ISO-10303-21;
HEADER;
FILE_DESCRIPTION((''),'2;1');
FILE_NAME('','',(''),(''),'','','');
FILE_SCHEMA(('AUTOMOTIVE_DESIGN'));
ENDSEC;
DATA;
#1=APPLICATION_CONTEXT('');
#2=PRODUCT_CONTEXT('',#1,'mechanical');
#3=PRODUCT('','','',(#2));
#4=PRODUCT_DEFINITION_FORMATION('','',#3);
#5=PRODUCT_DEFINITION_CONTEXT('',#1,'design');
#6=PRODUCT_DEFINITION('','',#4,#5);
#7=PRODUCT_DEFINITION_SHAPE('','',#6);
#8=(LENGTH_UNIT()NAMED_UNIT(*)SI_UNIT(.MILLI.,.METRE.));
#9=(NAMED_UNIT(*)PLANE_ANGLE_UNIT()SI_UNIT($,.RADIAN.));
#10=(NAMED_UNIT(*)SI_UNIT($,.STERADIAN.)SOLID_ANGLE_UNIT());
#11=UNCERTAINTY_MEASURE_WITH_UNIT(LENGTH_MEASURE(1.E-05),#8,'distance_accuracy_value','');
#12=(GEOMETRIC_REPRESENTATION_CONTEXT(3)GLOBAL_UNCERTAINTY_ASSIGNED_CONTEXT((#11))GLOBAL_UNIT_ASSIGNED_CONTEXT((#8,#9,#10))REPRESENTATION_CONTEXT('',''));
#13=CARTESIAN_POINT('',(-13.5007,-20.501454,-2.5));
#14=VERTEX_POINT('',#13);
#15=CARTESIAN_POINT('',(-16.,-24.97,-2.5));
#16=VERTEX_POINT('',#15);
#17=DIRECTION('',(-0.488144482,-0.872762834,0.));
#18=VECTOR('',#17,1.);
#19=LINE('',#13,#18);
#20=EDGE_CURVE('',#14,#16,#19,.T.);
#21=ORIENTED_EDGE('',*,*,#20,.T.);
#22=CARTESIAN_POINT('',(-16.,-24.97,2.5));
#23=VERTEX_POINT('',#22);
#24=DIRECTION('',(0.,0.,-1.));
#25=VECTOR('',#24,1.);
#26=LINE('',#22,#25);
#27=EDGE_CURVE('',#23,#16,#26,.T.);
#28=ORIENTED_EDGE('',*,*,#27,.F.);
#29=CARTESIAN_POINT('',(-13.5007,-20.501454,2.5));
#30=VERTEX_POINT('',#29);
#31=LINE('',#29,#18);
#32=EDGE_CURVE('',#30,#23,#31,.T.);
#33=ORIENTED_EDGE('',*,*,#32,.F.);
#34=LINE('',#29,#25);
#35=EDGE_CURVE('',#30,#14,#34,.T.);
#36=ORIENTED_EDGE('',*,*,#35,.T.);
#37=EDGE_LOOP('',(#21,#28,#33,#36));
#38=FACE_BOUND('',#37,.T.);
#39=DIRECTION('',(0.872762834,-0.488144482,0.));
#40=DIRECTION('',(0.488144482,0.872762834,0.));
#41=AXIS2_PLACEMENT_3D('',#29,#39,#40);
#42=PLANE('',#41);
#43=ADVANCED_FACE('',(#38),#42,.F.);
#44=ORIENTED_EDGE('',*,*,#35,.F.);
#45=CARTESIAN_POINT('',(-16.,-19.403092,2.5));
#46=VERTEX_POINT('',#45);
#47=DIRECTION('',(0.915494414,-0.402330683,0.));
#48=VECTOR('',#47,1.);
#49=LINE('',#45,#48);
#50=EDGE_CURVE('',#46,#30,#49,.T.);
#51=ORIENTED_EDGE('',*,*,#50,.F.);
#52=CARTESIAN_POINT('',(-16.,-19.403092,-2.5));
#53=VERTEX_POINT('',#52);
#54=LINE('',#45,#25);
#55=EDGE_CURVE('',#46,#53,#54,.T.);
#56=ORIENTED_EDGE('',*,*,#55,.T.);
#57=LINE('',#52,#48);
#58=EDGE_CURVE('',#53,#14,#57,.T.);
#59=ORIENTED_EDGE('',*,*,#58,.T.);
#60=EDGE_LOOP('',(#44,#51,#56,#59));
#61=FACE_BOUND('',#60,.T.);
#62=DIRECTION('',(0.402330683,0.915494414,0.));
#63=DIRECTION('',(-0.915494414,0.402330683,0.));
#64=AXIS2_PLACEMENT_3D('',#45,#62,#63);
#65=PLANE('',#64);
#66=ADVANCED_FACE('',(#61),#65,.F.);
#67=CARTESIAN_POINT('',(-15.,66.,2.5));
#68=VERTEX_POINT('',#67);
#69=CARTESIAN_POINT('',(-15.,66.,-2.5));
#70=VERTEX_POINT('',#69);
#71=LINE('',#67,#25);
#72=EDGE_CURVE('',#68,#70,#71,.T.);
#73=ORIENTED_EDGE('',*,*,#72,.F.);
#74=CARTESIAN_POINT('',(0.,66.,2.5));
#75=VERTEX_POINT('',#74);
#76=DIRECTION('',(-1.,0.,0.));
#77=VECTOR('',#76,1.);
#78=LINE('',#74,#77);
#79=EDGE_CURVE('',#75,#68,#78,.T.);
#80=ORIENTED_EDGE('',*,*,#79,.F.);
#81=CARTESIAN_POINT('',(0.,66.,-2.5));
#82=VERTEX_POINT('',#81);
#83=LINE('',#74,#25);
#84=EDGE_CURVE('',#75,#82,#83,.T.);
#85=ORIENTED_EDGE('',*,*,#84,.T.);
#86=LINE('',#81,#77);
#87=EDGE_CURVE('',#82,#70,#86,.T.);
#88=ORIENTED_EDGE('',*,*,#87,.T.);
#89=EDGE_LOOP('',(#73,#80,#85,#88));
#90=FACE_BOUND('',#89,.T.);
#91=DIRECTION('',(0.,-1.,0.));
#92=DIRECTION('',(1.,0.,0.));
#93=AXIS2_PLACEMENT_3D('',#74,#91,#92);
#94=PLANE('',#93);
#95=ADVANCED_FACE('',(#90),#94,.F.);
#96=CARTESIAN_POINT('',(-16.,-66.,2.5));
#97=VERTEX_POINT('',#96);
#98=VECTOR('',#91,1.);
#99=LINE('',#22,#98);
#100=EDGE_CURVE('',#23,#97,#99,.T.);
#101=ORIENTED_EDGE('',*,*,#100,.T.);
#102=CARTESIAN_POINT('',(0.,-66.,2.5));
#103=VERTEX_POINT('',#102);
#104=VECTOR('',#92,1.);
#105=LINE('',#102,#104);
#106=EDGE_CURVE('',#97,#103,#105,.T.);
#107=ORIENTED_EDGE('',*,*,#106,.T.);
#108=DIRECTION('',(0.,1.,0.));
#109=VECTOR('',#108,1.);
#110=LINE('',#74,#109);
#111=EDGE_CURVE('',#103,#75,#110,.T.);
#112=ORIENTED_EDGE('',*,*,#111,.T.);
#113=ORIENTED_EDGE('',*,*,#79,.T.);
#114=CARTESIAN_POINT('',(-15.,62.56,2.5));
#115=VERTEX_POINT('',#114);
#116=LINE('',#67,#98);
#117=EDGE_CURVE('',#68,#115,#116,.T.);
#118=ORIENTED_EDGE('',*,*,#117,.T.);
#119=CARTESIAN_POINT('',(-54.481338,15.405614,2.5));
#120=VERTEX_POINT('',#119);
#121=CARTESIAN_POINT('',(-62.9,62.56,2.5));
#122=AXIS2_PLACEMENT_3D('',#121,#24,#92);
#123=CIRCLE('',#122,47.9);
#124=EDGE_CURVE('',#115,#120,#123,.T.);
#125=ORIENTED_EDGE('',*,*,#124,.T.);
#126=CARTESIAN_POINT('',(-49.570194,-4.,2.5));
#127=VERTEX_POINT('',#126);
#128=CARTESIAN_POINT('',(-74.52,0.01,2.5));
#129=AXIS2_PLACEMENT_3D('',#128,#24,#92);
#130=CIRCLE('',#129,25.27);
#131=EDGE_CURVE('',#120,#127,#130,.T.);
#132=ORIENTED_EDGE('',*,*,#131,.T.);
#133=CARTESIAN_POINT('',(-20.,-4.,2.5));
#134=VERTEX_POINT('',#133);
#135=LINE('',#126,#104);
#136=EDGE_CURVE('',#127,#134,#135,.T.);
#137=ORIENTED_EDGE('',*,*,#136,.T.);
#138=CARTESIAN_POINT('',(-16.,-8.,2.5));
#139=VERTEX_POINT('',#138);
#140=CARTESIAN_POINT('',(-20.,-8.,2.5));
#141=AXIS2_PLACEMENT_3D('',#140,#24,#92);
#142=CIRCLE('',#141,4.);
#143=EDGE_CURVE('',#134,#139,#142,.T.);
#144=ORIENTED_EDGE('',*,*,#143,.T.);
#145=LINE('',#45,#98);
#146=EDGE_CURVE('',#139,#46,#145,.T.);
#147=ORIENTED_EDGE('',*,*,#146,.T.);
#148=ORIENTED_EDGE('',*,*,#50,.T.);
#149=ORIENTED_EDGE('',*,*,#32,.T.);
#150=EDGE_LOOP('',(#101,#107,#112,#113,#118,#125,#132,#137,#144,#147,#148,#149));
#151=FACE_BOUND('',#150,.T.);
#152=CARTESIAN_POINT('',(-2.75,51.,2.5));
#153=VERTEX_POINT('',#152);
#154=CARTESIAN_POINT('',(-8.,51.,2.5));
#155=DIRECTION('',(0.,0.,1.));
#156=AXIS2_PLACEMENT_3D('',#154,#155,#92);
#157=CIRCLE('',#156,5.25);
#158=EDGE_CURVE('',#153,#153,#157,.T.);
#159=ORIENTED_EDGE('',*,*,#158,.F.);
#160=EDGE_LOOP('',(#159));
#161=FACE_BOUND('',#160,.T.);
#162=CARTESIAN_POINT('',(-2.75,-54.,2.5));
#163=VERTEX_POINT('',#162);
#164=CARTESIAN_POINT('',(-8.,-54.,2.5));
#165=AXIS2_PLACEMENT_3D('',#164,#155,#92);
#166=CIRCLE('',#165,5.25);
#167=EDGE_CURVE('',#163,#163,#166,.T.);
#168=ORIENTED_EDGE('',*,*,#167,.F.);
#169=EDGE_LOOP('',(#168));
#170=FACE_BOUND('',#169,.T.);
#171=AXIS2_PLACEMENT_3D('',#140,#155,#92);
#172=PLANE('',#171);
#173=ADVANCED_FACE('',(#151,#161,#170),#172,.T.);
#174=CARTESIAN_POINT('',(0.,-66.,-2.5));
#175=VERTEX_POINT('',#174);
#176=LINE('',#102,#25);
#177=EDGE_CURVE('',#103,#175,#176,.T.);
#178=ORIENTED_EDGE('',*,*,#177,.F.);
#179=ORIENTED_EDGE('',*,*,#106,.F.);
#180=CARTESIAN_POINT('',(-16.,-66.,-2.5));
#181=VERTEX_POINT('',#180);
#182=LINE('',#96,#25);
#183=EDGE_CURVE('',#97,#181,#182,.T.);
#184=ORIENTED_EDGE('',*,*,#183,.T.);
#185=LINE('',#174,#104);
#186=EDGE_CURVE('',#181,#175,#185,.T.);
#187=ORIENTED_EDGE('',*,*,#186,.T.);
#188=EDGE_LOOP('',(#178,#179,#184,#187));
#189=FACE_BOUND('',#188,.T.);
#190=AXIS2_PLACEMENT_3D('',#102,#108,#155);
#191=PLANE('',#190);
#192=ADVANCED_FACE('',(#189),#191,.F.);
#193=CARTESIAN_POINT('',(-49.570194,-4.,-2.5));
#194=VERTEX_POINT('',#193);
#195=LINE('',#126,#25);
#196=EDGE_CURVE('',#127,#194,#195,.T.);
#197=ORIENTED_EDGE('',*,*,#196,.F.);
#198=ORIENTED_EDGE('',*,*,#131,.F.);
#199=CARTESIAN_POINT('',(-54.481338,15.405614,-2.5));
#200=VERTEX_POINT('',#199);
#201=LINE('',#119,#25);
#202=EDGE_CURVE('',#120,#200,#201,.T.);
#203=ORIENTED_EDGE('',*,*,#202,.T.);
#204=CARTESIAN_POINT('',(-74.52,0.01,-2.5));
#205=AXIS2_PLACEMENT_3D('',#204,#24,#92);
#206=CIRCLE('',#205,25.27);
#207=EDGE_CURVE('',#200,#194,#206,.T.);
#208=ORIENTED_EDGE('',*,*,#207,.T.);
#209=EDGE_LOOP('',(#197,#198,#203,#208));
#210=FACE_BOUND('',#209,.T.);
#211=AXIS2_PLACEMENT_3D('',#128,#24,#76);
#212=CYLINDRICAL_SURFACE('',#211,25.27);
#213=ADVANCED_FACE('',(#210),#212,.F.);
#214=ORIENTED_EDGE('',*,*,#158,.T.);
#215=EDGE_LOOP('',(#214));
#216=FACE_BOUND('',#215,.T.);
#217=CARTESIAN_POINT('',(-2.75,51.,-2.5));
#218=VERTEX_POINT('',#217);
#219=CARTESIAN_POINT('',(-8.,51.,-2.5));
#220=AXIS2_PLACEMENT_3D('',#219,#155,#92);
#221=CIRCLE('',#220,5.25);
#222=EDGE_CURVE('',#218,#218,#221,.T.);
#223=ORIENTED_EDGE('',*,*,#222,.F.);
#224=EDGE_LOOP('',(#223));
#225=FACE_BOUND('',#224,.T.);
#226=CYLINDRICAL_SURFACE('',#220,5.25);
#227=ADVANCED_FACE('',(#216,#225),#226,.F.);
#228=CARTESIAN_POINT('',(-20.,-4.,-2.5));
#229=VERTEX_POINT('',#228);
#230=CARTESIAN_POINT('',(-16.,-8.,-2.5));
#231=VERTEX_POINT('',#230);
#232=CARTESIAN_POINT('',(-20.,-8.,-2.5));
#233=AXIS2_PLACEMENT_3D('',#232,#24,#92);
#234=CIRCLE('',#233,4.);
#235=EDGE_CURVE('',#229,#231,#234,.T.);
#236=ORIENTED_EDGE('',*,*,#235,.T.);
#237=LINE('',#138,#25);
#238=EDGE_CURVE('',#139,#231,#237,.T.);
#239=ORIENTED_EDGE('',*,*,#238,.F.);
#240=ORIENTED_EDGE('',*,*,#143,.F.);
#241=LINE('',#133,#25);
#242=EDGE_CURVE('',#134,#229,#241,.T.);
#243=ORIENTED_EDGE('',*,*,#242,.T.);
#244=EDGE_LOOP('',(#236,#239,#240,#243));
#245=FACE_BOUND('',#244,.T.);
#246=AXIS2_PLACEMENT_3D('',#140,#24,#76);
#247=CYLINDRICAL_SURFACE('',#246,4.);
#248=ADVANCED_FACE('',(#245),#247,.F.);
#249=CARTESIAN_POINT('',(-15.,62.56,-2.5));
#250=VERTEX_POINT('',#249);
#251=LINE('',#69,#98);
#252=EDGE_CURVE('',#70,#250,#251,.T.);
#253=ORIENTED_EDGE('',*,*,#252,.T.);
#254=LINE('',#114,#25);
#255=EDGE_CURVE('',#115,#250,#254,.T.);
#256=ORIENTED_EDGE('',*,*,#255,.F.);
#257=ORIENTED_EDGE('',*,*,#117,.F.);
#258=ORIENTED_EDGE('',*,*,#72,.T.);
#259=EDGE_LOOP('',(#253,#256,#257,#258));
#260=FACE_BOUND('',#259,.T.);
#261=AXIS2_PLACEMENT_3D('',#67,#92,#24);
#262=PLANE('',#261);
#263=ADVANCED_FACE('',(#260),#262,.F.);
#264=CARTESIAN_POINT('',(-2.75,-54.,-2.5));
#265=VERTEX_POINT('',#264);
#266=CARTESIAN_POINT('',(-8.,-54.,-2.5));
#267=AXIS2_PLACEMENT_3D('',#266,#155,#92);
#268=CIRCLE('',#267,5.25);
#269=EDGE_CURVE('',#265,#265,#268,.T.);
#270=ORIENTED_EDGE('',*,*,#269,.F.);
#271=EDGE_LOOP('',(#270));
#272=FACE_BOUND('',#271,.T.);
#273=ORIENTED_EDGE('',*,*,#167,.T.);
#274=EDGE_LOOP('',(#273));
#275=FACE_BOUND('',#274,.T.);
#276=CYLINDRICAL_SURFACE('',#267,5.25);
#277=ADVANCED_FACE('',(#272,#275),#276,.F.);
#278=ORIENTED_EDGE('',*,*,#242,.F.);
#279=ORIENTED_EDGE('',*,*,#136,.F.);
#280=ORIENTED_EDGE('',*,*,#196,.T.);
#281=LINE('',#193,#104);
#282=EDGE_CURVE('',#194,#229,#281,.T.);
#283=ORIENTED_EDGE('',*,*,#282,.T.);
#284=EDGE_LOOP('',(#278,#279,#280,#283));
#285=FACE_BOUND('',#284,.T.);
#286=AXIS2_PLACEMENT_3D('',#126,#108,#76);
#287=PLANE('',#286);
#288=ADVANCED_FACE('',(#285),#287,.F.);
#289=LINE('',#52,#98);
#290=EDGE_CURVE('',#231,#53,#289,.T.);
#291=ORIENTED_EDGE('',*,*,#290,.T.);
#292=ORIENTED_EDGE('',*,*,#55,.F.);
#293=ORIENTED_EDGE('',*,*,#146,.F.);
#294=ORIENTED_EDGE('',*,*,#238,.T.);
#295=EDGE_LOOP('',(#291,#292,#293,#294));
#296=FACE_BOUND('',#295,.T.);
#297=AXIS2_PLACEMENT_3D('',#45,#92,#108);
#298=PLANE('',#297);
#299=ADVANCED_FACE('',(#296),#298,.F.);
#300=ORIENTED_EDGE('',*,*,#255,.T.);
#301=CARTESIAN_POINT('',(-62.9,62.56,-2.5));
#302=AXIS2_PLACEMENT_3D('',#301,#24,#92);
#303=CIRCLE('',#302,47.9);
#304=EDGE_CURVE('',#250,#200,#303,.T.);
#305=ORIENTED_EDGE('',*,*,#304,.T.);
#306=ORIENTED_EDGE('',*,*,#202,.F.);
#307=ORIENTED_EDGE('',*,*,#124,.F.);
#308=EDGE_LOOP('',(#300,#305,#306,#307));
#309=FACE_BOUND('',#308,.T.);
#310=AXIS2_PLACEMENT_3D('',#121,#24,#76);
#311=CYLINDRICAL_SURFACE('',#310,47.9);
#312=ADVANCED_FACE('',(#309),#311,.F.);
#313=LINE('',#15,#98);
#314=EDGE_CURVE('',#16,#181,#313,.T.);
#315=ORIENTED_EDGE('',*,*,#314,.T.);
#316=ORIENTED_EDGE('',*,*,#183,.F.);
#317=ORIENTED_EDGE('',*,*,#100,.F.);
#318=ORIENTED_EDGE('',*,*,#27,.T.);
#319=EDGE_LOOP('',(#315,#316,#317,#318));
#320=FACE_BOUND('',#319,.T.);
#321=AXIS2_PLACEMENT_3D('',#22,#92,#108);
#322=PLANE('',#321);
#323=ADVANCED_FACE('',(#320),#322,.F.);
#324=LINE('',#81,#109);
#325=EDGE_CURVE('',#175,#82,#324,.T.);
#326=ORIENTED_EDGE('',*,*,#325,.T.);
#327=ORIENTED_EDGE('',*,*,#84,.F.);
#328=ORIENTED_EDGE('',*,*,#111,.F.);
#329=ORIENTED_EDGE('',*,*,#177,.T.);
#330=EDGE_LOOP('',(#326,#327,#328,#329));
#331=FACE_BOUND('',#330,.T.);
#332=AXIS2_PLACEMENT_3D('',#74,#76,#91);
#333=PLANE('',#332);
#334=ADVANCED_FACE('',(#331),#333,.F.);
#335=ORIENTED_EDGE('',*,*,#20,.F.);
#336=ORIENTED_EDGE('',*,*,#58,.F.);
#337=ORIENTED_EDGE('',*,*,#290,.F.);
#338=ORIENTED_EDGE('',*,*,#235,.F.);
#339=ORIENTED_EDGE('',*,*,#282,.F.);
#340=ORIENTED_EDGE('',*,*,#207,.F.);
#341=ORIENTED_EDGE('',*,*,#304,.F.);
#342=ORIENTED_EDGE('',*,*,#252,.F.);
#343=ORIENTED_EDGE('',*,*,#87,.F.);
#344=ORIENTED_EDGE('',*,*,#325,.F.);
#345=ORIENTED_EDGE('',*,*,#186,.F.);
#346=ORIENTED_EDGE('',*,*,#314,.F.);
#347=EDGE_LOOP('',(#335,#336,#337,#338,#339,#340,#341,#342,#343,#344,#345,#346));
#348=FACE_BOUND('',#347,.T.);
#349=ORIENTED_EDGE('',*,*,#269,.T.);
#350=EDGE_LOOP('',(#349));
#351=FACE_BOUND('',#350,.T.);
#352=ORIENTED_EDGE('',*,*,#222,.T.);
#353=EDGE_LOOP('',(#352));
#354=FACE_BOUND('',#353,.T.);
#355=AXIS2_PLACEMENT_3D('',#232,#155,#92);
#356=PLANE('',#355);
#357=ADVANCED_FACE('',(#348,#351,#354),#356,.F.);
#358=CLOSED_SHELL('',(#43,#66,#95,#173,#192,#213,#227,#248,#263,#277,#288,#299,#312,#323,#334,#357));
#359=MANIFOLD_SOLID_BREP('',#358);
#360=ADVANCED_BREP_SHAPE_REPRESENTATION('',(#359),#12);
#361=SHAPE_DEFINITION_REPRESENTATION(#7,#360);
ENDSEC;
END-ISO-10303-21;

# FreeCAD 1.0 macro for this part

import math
import FreeCAD as App
import Part
import Sketcher
from FreeCAD import Vector

doc = App.newDocument("Part")
body = doc.addObject("PartDesign::Body", "Body")

sketch1 = doc.addObject("Sketcher::SketchObject", "Sketch")
body.addObject(sketch1)
sketch1.AttachmentSupport = (doc.XY_Plane, [""])
sketch1.MapMode = "FlatFace"
sketch1.addGeometry([
    Part.LineSegment(Vector(-49.6, -4, 0), Vector(-20, -4, 0)),
    Part.ArcOfCircle(Part.Circle(Vector(-20, -8, 0), Vector(0, 0, 1), 4), math.radians(0), math.radians(90)),
    Part.LineSegment(Vector(-16, -8, 0), Vector(-16, -19.4, 0)),
    Part.LineSegment(Vector(-16, -19.4, 0), Vector(-13.5, -20.5, 0)),
    Part.LineSegment(Vector(-13.5, -20.5, 0), Vector(-16, -25, 0)),
    Part.LineSegment(Vector(-16, -25, 0), Vector(-16, -66, 0)),
    Part.LineSegment(Vector(-16, -66, 0), Vector(0, -66, 0)),
    Part.LineSegment(Vector(0, -66, 0), Vector(0, 66, 0)),
    Part.LineSegment(Vector(0, 66, 0), Vector(-15, 66, 0)),
    Part.LineSegment(Vector(-15, 66, 0), Vector(-15, 62.6, 0)),
    Part.ArcOfCircle(Part.Circle(Vector(-62.9, 62.6, 0), Vector(0, 0, 1), 47.9), math.radians(-80), math.radians(0)),
    Part.ArcOfCircle(Part.Circle(Vector(-74.5, 0, 0), Vector(0, 0, 1), 25.3), math.radians(-9), math.radians(38)),
], False)
sketch1.addConstraint([
    Sketcher.Constraint("Tangent", 0, 2, 1, 2),
    Sketcher.Constraint("Tangent", 1, 1, 2, 1),
    Sketcher.Constraint("Coincident", 2, 2, 3, 1),
    Sketcher.Constraint("Coincident", 3, 2, 4, 1),
    Sketcher.Constraint("Coincident", 4, 2, 5, 1),
    Sketcher.Constraint("Coincident", 5, 2, 6, 1),
    Sketcher.Constraint("Coincident", 6, 2, 7, 1),
    Sketcher.Constraint("Coincident", 7, 2, 8, 1),
    Sketcher.Constraint("Coincident", 8, 2, 9, 1),
    Sketcher.Constraint("Tangent", 9, 2, 10, 2),
    Sketcher.Constraint("Coincident", 10, 1, 11, 2),
    Sketcher.Constraint("Coincident", 11, 1, 0, 1),
    Sketcher.Constraint("Horizontal", 0),
    Sketcher.Constraint("Vertical", 2),
    Sketcher.Constraint("Vertical", 5),
    Sketcher.Constraint("Horizontal", 6),
    Sketcher.Constraint("Vertical", 7),
    Sketcher.Constraint("Horizontal", 8),
    Sketcher.Constraint("Vertical", 9),
    Sketcher.Constraint("Symmetric", 6, 2, 7, 2, -1, 1),
    Sketcher.Constraint("Vertical", 2, 2, 4, 2),
    Sketcher.Constraint("Radius", 1, 4.0),
    Sketcher.Constraint("Radius", 10, 47.9),
    Sketcher.Constraint("DistanceX", 6, 1, 6, 2, 16.0),
    Sketcher.Constraint("DistanceX", 8, 2, 8, 1, 15.0),
    Sketcher.Constraint("DistanceY", 7, 1, 7, 2, 132.0),
    Sketcher.Constraint("Radius", 11, 25.27),
    Sketcher.Constraint("DistanceY", 1, 3, -1, 1, 8.0),
    Sketcher.Constraint("DistanceY", 5, 2, 5, 1, 41.03),
    Sketcher.Constraint("DistanceY", 9, 2, 9, 1, 3.44),
    Sketcher.Constraint("Distance", 3, 2.73),
    Sketcher.Constraint("Distance", 4, 5.12),
    Sketcher.Constraint("DistanceX", 11, 3, -1, 1, 74.52),
    Sketcher.Constraint("DistanceY", -1, 1, 11, 3, 0.01),
    Sketcher.Constraint("DistanceY", 2, 2, 2, 1, 11.403092),
])
pad1 = doc.addObject("PartDesign::Pad", "Pad")
body.addObject(pad1)
pad1.Profile = sketch1
pad1.Length = 5
pad1.Midplane = True

sketch2 = doc.addObject("Sketcher::SketchObject", "Sketch001")
body.addObject(sketch2)
sketch2.AttachmentSupport = (doc.XY_Plane, [""])
sketch2.MapMode = "FlatFace"
sketch2.AttachmentOffset = App.Placement(Vector(0, 0, 2.5), App.Rotation())
sketch2.addGeometry([
    Part.Circle(Vector(-8, 51, 0), Vector(0, 0, 1), 5),
    Part.Circle(Vector(-8, -54, 0), Vector(0, 0, 1), 5),
], False)
sketch2.addConstraint([
    Sketcher.Constraint("Equal", 0, 1),
    Sketcher.Constraint("Vertical", 0, 3, 1, 3),
    Sketcher.Constraint("Diameter", 0, 10.5),
    Sketcher.Constraint("DistanceX", 0, 3, -1, 1, 8.0),
    Sketcher.Constraint("DistanceY", -1, 1, 0, 3, 51.0),
    Sketcher.Constraint("DistanceY", 1, 3, -1, 1, 54.0),
])
pocket1 = doc.addObject("PartDesign::Pocket", "Pocket")
body.addObject(pocket1)
pocket1.Profile = sketch2
pocket1.Type = "ThroughAll"

doc.recompute()
